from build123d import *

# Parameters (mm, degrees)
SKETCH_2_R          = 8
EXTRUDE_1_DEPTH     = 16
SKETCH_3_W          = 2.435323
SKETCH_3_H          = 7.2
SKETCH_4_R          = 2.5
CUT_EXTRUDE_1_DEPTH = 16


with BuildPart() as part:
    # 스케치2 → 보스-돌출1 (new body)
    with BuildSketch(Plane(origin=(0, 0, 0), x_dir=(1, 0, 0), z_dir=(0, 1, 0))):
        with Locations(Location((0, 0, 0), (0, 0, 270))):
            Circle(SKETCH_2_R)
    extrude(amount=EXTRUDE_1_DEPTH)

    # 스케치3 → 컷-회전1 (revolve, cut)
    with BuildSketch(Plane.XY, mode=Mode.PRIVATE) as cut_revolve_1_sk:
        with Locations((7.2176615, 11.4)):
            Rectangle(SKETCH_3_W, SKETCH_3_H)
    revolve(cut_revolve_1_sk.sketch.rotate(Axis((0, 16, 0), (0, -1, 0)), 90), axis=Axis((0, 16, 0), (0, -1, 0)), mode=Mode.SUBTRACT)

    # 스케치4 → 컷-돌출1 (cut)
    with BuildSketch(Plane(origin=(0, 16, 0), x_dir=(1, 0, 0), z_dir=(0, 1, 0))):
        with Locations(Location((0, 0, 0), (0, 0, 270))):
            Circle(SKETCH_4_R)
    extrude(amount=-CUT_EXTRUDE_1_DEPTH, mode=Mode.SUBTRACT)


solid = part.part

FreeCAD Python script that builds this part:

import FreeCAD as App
import Part
import Sketcher

V = App.Vector


def add_polygon(sketch, points):
    """Adds a closed chain of lines whose ends are joined by coincident constraints."""
    first, n = sketch.GeometryCount, len(points)
    for a, b in zip(points, points[1:] + points[:1]):
        sketch.addGeometry(Part.LineSegment(App.Vector(*a, 0), App.Vector(*b, 0)), False)
    for i in range(n):
        sketch.addConstraint(Sketcher.Constraint("Coincident", first + i, 2, first + (i + 1) % n, 1))

doc = App.newDocument("Part")
body = doc.addObject("PartDesign::Body", "Body")

# Sketch on XZ plane
sketch1 = doc.addObject("Sketcher::SketchObject", "Sketch")
body.addObject(sketch1)
sketch1.AttachmentSupport = (doc.XZ_Plane, [""])
sketch1.MapMode = "FlatFace"
sketch1.addGeometry(Part.Circle(V(0, 0, 0), V(0, 0, 1), 8), False)
sketch1.addConstraint(Sketcher.Constraint("Coincident", 0, 3, -1, 1))
sketch1.addConstraint(Sketcher.Constraint("Diameter", 0, 16.0))
pad1 = doc.addObject("PartDesign::Pad", "Pad")
body.addObject(pad1)
pad1.Profile = sketch1
pad1.Length = 16
pad1.Reversed = True

# Sketch on XY plane
sketch2 = doc.addObject("Sketcher::SketchObject", "Sketch001")
body.addObject(sketch2)
sketch2.AttachmentSupport = (doc.XY_Plane, [""])
sketch2.MapMode = "FlatFace"
add_polygon(sketch2, [(6, 15), (6, 7.8), (8.4, 7.8), (8.4, 15)])  # lines 0-3
sketch2.addConstraint(Sketcher.Constraint("Vertical", 0))
sketch2.addConstraint(Sketcher.Constraint("Horizontal", 1))
sketch2.addConstraint(Sketcher.Constraint("Vertical", 2))
sketch2.addConstraint(Sketcher.Constraint("Horizontal", 3))
sketch2.addConstraint(Sketcher.Constraint("DistanceY", 0, 2, 0, 1, 7.2))
sketch2.addConstraint(Sketcher.Constraint("DistanceX", -1, 1, 0, 2, 6.0))
sketch2.addConstraint(Sketcher.Constraint("DistanceY", -1, 1, 2, 2, 15.0))
sketch2.addConstraint(Sketcher.Constraint("DistanceX", 1, 1, 1, 2, 2.435323))
groove = doc.addObject("PartDesign::Groove", "Groove")
body.addObject(groove)
groove.Profile = sketch2
groove.ReferenceAxis = (sketch2, ["V_Axis"])
groove.Angle = 360

# Sketch on XZ plane
sketch3 = doc.addObject("Sketcher::SketchObject", "Sketch002")
body.addObject(sketch3)
sketch3.AttachmentSupport = (doc.XZ_Plane, [""])
sketch3.MapMode = "FlatFace"
sketch3.AttachmentOffset = App.Placement(V(0, 0, -16), App.Rotation())
sketch3.addGeometry(Part.Circle(V(0, 0, 0), V(0, 0, 1), 2.5), False)
sketch3.addConstraint(Sketcher.Constraint("Coincident", 0, 3, -1, 1))
sketch3.addConstraint(Sketcher.Constraint("Diameter", 0, 5.0))
pocket1 = doc.addObject("PartDesign::Pocket", "Pocket")
body.addObject(pocket1)
pocket1.Profile = sketch3
pocket1.Length = 16
pocket1.Reversed = True

doc.recompute()
